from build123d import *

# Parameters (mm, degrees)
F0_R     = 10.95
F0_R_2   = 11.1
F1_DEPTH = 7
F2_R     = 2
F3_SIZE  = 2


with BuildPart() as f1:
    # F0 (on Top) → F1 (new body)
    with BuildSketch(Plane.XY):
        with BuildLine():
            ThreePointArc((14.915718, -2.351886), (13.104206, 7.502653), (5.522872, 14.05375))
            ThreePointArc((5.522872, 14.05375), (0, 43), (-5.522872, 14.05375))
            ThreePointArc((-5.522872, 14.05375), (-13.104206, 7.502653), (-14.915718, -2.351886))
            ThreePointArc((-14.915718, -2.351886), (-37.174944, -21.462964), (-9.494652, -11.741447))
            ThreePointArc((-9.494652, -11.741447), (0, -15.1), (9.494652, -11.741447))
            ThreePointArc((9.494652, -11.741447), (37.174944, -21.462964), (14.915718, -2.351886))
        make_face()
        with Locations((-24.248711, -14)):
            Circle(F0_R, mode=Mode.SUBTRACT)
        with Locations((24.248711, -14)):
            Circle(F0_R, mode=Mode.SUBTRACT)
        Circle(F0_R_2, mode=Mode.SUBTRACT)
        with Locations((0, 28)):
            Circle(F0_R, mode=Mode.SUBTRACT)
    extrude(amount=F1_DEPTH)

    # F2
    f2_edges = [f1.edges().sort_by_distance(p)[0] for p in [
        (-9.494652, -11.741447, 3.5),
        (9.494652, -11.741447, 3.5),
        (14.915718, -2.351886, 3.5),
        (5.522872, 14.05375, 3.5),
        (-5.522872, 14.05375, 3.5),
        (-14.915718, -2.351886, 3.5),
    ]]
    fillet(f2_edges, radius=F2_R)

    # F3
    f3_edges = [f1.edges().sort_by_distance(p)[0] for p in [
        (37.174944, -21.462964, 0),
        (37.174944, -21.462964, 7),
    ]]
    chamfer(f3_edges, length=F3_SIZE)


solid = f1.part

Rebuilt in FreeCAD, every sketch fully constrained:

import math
import FreeCAD as App
import Part
import Sketcher


def edges_at(feature, points):
    """Names of the edges that pass closest to the given points."""
    edges = feature.Shape.Edges
    near = lambda p: min(range(len(edges)), key=lambda i: edges[i].distToShape(Part.Vertex(*p))[0])
    return sorted({f"Edge{near(p) + 1}" for p in points})

doc = App.newDocument("Part")
body = doc.addObject("PartDesign::Body", "Body")

# Sketch on XY plane
sketch1 = body.newObject("Sketcher::SketchObject", "Sketch")
sketch1.AttachmentSupport = (doc.getObject("XY_Plane"), [""])
sketch1.MapMode = "FlatFace"
sketch1.addGeometry(Part.ArcOfCircle(Part.Circle(App.Vector(0.000001, 0.000001, 0), App.Vector(0, 0, 1), 15.099999), math.radians(-8.960533), math.radians(68.546066)), False)
sketch1.addGeometry(Part.ArcOfCircle(Part.Circle(App.Vector(0, 28, 0), App.Vector(0, 0, 1), 15), math.radians(-68.395877), math.radians(248.395877)), False)
sketch1.addGeometry(Part.ArcOfCircle(Part.Circle(App.Vector(-0.000001, 0.000001, 0), App.Vector(0, 0, 1), 15.099999), math.radians(111.453934), math.radians(188.960533)), False)
sketch1.addGeometry(Part.ArcOfCircle(Part.Circle(App.Vector(-24.248711, -14, 0), App.Vector(0, 0, 1), 14.925928), math.radians(51.296722), math.radians(368.703282)), False)
sketch1.addGeometry(Part.ArcOfCircle(Part.Circle(App.Vector(0, -0.000001, 0), App.Vector(0, 0, 1), 15.099999), math.radians(-128.960534), math.radians(-51.039466)), False)
sketch1.addGeometry(Part.ArcOfCircle(Part.Circle(App.Vector(24.248711, -14, 0), App.Vector(0, 0, 1), 14.925928), math.radians(171.296718), math.radians(488.703278)), False)
sketch1.addGeometry(Part.Circle(App.Vector(-24.248711, -14, 0), App.Vector(0, 0, 1), 10.95), False)
sketch1.addGeometry(Part.Circle(App.Vector(24.248711, -14, 0), App.Vector(0, 0, 1), 10.95), False)
sketch1.addGeometry(Part.Circle(App.Vector(0, 0, 0), App.Vector(0, 0, 1), 11.1), False)
sketch1.addGeometry(Part.Circle(App.Vector(0, 28, 0), App.Vector(0, 0, 1), 10.95), False)
sketch1.addConstraint(Sketcher.Constraint("Coincident", 0, 2, 1, 1))
sketch1.addConstraint(Sketcher.Constraint("Coincident", 1, 2, 2, 1))
sketch1.addConstraint(Sketcher.Constraint("Coincident", 2, 2, 3, 1))
sketch1.addConstraint(Sketcher.Constraint("Coincident", 3, 2, 4, 1))
sketch1.addConstraint(Sketcher.Constraint("Coincident", 4, 2, 5, 1))
sketch1.addConstraint(Sketcher.Constraint("Coincident", 5, 2, 0, 1))
sketch1.addConstraint(Sketcher.Constraint("Coincident", 0, 3, -1, 1))
sketch1.addConstraint(Sketcher.Constraint("Coincident", 2, 3, -1, 1))
sketch1.addConstraint(Sketcher.Constraint("Coincident", 4, 3, -1, 1))
sketch1.addConstraint(Sketcher.Constraint("Coincident", 8, 3, -1, 1))
sketch1.addConstraint(Sketcher.Constraint("Coincident", 6, 3, 3, 3))
sketch1.addConstraint(Sketcher.Constraint("Coincident", 7, 3, 5, 3))
sketch1.addConstraint(Sketcher.Constraint("Coincident", 9, 3, 1, 3))
sketch1.addConstraint(Sketcher.Constraint("Equal", 0, 2))
sketch1.addConstraint(Sketcher.Constraint("Equal", 2, 4))
sketch1.addConstraint(Sketcher.Constraint("Equal", 3, 5))
sketch1.addConstraint(Sketcher.Constraint("Equal", 6, 7))
sketch1.addConstraint(Sketcher.Constraint("Equal", 7, 9))
sketch1.addConstraint(Sketcher.Constraint("Symmetric", 3, 3, 5, 3, -2))
sketch1.addConstraint(Sketcher.Constraint("PointOnObject", 1, 3, -2))
sketch1.addConstraint(Sketcher.Constraint("Radius", 1, 15.0))
sketch1.addConstraint(Sketcher.Constraint("Diameter", 6, 21.9))
sketch1.addConstraint(Sketcher.Constraint("Diameter", 8, 22.2))
sketch1.addConstraint(Sketcher.Constraint("Radius", 0, 15.099999))
sketch1.addConstraint(Sketcher.Constraint("DistanceY", -1, 1, 1, 3, 28.0))
sketch1.addConstraint(Sketcher.Constraint("DistanceY", 3, 3, -1, 1, 14.0))
sketch1.addConstraint(Sketcher.Constraint("Radius", 3, 14.925928))
sketch1.addConstraint(Sketcher.Constraint("DistanceX", 3, 3, -1, 1, 24.248711))
pad1 = body.newObject("PartDesign::Pad", "Pad")
pad1.Profile = sketch1
pad1.Length = 7
doc.recompute()

fillet = body.newObject("PartDesign::Fillet", "Fillet")
fillet.Base = (pad1, edges_at(pad1, [
    (-9.495, -11.741, 3.5),
    (9.495, -11.741, 3.5),
    (14.916, -2.352, 3.5),
    (5.523, 14.054, 3.5),
    (-5.523, 14.054, 3.5),
    (-14.916, -2.352, 3.5),
]))
fillet.Radius = 2
doc.recompute()

chamfer = body.newObject("PartDesign::Chamfer", "Chamfer")
chamfer.Base = (fillet, edges_at(fillet, [(37.175, -21.463, 0), (37.175, -21.463, 7)]))
chamfer.Size = 2

doc.recompute()
